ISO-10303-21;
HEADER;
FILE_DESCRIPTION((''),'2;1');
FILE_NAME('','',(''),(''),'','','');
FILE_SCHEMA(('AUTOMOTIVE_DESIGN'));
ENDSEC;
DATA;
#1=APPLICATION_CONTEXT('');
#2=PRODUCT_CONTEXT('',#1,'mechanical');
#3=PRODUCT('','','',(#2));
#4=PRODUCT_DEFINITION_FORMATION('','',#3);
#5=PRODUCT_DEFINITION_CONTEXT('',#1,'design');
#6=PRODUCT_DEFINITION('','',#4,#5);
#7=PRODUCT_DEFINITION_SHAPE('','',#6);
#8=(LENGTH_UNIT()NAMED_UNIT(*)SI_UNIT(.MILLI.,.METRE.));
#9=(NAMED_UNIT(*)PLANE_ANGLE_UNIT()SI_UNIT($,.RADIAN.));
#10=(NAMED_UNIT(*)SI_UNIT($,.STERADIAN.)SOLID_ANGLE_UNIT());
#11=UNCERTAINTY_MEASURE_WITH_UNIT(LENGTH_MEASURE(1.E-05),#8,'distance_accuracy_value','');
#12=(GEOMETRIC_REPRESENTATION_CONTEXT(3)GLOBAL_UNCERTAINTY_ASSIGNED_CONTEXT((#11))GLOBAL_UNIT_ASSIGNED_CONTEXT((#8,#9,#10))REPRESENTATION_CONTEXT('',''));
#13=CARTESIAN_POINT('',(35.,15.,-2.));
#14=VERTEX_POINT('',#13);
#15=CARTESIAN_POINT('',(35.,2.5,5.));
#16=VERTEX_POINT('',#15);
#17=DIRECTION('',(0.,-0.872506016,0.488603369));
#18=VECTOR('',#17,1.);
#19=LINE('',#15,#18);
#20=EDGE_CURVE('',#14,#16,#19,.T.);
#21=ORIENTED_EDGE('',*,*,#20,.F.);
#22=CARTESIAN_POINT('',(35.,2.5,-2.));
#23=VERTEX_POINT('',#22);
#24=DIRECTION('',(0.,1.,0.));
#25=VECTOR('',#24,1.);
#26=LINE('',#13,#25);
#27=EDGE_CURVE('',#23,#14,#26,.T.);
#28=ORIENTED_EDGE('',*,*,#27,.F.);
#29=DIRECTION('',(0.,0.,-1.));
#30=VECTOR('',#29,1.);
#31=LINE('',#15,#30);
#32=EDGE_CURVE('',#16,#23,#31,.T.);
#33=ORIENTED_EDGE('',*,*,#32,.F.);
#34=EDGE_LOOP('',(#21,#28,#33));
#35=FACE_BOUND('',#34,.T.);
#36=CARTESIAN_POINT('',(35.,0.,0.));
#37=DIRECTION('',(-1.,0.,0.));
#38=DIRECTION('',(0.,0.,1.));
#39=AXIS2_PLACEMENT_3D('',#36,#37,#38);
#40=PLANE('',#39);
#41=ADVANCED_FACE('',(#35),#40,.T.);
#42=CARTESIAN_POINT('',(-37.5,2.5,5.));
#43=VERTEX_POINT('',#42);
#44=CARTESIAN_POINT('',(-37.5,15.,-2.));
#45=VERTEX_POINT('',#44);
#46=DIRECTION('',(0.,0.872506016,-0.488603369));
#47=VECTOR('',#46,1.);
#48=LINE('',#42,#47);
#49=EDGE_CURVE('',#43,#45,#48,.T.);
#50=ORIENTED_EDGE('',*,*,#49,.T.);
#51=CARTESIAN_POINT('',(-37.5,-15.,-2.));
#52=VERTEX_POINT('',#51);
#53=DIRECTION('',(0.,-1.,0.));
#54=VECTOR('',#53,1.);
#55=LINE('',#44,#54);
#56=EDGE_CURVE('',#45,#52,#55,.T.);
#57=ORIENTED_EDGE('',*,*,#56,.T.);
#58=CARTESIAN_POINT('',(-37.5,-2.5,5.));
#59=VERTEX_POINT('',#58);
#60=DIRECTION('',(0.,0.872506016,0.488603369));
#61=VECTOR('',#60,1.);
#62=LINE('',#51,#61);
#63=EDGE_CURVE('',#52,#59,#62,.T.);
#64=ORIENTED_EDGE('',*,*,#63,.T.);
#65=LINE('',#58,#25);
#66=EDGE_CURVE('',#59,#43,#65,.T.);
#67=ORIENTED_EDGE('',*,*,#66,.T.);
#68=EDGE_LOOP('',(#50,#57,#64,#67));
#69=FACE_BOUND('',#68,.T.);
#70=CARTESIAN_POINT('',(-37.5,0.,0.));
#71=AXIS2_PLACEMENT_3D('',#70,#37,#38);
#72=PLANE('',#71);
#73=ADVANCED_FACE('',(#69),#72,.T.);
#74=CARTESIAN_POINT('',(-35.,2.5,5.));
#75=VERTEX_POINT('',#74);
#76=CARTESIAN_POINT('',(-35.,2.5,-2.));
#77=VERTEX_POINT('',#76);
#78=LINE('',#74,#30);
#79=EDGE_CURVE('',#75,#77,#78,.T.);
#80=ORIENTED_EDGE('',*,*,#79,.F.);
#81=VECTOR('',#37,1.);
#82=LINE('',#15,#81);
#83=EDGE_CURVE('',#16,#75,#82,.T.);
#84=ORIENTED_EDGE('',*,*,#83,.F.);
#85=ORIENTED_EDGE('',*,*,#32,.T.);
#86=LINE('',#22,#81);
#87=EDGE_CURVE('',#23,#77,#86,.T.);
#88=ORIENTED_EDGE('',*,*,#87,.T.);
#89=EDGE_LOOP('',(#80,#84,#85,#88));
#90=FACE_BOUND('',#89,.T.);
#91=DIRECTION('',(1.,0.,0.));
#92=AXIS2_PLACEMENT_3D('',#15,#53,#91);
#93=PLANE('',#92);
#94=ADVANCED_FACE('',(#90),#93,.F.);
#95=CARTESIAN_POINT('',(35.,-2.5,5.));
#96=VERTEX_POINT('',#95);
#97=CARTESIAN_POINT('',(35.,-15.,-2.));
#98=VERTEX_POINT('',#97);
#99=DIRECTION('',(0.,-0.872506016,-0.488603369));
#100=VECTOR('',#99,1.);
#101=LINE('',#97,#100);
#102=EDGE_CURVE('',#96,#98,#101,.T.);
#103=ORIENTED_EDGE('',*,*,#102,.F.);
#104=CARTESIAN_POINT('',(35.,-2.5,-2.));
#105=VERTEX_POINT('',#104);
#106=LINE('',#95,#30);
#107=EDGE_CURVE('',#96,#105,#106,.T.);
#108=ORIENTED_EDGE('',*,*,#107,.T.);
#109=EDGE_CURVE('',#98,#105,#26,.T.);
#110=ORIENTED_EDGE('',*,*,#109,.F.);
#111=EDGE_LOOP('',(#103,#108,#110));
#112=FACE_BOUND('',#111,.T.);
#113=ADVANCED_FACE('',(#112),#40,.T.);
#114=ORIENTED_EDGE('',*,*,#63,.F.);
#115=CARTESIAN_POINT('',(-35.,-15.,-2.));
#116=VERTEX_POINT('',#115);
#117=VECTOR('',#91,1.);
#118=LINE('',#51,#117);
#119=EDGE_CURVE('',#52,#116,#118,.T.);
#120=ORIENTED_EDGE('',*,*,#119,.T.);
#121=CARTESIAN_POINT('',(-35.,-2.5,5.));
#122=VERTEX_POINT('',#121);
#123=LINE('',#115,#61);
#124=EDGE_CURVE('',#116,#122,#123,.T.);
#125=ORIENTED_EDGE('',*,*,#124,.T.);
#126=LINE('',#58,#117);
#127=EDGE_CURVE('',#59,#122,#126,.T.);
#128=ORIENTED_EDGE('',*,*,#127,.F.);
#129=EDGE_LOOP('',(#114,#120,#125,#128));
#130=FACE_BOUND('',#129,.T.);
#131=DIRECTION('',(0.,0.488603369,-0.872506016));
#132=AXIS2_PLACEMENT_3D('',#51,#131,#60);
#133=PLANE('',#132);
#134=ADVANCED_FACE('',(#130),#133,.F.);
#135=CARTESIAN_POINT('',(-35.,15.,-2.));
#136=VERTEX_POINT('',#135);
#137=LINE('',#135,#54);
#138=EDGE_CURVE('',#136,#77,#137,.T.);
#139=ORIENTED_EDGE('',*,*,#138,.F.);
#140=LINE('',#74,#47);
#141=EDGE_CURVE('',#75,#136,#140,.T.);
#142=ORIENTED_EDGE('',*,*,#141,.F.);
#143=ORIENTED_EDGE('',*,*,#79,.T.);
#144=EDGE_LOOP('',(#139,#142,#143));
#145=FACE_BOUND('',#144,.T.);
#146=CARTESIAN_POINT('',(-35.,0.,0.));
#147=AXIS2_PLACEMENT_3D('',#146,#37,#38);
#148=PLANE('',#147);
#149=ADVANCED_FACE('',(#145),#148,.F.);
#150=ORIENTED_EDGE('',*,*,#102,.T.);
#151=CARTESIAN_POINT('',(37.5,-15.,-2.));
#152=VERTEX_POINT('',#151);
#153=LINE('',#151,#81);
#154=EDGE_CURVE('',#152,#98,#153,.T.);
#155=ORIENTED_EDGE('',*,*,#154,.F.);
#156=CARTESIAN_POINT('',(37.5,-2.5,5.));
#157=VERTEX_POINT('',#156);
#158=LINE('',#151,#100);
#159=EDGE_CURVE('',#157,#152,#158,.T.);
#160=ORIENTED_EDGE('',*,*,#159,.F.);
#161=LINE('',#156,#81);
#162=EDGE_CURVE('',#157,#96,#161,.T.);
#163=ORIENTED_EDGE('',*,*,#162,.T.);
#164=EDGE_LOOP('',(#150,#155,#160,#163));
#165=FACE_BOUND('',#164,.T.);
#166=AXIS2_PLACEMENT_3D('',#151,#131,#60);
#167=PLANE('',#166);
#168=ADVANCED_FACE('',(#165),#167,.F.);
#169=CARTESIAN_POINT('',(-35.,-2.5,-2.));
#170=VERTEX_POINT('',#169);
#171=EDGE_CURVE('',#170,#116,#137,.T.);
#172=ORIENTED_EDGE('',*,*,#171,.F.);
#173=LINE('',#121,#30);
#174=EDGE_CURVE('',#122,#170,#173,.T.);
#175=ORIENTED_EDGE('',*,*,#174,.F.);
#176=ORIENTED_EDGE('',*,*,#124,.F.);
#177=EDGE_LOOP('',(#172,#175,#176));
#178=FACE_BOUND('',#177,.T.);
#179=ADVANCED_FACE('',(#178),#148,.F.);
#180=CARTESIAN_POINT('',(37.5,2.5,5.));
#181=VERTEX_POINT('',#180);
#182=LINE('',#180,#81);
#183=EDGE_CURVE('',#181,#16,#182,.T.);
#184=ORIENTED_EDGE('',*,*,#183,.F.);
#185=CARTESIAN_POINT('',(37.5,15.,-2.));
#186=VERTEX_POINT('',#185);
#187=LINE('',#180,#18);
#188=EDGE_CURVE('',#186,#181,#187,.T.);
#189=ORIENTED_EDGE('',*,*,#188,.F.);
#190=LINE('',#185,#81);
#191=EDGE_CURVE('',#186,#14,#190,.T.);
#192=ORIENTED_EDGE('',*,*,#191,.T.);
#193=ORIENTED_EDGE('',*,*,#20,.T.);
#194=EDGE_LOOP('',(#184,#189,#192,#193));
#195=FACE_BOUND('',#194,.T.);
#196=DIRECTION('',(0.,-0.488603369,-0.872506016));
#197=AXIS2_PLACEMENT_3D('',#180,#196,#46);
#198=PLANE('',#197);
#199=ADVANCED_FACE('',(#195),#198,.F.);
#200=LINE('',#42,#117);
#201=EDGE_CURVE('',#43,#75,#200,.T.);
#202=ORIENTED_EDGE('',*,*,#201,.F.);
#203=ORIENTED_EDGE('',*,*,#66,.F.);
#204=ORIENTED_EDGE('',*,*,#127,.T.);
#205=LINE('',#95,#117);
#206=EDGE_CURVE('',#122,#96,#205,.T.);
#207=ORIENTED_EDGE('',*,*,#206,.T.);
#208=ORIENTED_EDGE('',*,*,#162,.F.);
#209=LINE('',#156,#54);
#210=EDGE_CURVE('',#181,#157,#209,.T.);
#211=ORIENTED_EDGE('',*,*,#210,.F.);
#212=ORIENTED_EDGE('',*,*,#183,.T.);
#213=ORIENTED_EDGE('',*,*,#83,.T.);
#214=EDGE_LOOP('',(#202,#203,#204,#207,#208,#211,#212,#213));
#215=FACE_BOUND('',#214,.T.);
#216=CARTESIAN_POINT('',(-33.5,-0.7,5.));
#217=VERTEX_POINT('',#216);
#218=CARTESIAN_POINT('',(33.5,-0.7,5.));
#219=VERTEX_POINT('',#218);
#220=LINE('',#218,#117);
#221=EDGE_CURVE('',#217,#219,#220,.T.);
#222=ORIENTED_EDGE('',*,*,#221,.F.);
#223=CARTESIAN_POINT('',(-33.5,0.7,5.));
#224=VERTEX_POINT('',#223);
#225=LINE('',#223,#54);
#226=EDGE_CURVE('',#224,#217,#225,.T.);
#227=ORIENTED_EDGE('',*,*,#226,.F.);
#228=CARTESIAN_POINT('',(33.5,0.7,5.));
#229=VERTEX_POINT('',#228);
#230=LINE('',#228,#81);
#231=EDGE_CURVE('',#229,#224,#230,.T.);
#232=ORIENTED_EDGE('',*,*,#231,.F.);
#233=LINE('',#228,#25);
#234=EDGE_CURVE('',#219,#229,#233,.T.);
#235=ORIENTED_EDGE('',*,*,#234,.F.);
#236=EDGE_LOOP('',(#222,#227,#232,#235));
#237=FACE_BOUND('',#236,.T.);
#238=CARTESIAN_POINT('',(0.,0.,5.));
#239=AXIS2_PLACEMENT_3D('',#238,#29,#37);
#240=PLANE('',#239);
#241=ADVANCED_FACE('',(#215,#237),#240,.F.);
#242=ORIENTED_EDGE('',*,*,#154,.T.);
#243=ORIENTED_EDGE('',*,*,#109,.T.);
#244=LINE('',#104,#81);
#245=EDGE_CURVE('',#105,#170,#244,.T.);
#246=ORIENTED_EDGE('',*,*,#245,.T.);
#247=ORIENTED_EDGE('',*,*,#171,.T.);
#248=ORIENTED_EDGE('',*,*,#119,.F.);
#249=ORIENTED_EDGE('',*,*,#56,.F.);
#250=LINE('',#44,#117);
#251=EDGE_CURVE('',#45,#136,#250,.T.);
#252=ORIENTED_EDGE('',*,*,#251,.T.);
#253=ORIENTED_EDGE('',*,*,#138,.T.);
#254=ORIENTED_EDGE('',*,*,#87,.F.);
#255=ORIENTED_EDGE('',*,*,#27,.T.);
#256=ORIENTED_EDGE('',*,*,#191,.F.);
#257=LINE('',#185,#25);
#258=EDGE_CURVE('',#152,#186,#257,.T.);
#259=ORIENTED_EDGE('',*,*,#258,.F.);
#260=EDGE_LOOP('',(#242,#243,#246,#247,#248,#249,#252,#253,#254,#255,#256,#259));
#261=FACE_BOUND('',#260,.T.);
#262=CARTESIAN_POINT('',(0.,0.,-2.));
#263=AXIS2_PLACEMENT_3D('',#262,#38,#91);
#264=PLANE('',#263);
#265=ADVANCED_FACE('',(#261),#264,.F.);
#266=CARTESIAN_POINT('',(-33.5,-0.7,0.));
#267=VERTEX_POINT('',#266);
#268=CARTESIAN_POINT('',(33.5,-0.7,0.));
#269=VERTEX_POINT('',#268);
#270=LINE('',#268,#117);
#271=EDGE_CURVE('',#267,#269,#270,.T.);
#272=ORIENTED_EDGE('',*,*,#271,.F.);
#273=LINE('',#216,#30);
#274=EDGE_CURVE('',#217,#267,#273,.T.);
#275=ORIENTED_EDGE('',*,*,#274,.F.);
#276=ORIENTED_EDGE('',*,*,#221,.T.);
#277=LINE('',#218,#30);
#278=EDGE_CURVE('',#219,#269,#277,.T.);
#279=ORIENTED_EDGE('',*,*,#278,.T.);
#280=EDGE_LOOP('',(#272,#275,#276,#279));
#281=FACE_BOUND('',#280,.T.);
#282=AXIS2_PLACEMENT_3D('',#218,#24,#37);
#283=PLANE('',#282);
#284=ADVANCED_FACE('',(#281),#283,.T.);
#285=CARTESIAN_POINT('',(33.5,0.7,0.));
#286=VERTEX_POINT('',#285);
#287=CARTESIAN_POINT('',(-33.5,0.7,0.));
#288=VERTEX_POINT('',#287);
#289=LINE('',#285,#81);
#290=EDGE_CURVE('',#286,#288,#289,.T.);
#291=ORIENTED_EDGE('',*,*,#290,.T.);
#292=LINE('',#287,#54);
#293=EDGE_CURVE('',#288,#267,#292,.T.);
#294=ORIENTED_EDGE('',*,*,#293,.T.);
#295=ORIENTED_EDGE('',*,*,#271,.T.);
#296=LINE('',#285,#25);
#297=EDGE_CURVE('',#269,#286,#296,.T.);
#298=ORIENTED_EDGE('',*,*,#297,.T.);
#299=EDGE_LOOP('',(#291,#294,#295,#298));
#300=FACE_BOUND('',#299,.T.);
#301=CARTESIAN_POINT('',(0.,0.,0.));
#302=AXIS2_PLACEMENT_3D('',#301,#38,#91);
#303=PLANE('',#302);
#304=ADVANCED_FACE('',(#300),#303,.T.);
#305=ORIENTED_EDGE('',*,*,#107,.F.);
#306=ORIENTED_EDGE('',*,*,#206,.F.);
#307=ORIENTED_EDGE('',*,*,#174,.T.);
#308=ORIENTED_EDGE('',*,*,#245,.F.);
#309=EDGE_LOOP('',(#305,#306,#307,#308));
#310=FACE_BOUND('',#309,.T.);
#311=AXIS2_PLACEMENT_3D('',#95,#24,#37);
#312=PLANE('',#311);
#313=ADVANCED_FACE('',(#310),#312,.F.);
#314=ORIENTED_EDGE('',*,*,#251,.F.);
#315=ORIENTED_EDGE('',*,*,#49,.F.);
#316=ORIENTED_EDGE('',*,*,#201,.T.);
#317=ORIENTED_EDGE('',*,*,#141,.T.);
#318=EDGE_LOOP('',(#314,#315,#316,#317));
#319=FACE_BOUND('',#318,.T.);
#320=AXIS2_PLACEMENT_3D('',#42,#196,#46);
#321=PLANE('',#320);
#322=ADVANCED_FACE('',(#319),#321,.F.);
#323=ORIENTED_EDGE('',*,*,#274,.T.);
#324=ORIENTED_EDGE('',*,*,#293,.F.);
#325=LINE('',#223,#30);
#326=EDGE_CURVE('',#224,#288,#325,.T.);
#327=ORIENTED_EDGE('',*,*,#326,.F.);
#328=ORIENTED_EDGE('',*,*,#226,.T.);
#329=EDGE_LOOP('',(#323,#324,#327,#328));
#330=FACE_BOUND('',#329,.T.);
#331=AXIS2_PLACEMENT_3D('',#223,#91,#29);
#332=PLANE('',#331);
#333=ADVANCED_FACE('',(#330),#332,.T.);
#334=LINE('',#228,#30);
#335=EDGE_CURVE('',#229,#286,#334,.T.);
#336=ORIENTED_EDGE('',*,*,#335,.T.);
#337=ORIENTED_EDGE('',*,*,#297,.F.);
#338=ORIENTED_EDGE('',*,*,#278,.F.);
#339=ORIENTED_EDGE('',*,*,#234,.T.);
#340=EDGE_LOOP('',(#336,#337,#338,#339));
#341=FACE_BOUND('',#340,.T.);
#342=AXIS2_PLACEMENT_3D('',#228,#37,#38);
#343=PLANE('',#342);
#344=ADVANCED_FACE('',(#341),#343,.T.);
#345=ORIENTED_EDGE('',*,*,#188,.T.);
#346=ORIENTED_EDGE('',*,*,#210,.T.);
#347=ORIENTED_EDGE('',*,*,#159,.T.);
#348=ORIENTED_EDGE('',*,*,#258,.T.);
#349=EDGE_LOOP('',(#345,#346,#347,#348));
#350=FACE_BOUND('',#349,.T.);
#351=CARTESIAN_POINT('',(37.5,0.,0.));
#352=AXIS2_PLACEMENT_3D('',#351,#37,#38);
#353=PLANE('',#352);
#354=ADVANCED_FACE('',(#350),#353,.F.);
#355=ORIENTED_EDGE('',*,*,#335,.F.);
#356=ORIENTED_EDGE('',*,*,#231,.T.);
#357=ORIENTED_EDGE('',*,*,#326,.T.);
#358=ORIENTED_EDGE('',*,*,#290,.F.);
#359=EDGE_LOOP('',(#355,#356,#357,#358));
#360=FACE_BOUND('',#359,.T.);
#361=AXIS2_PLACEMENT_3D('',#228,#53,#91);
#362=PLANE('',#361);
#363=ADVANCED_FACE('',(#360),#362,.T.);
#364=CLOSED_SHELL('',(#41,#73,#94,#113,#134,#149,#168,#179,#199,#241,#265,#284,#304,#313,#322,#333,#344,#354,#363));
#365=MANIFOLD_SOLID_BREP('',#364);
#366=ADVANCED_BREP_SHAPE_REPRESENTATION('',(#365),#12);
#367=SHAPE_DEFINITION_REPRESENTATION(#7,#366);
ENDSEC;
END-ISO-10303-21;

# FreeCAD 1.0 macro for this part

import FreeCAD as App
import Part
import Sketcher

V = App.Vector
Q = App.Units.Quantity


def add_polygon(sketch, points):
    """Adds a closed chain of lines whose ends are joined by coincident constraints."""
    first, n = sketch.GeometryCount, len(points)
    for a, b in zip(points, points[1:] + points[:1]):
        sketch.addGeometry(Part.LineSegment(App.Vector(*a, 0), App.Vector(*b, 0)), False)
    for i in range(n):
        sketch.addConstraint(Sketcher.Constraint("Coincident", first + i, 2, first + (i + 1) % n, 1))

doc = App.newDocument("Part")
body = doc.addObject("PartDesign::Body", "Body")

# Sketch on XY plane
sketch1 = body.newObject("Sketcher::SketchObject", "Sketch")
sketch1.AttachmentSupport = (doc.getObject("XY_Plane"), [""])
sketch1.MapMode = "FlatFace"
add_polygon(sketch1, [(-35, 2.5), (-35, -2.5), (35, -2.5), (35, 2.5)])  # lines 0-3
add_polygon(sketch1, [(33.5, -0.7), (-33.5, -0.7), (-33.5, 0.7), (33.5, 0.7)])  # lines 4-7
sketch1.addConstraint([
    Sketcher.Constraint("Vertical", 0),
    Sketcher.Constraint("Horizontal", 1),
    Sketcher.Constraint("Vertical", 2),
    Sketcher.Constraint("Horizontal", 3),
    Sketcher.Constraint("Horizontal", 4),
    Sketcher.Constraint("Vertical", 5),
    Sketcher.Constraint("Horizontal", 6),
    Sketcher.Constraint("Vertical", 7),
    Sketcher.Constraint("Symmetric", 0, 2, 2, 2, -1, 1),
    Sketcher.Constraint("Symmetric", 4, 2, 6, 2, -1, 1),
    Sketcher.Constraint("DistanceX", 1, 1, 1, 2, Q("70 mm")),
    Sketcher.Constraint("DistanceX", 4, 2, 4, 1, Q("67 mm")),
    Sketcher.Constraint("DistanceY", 0, 2, 0, 1, Q("5 mm")),
    Sketcher.Constraint("DistanceY", 5, 1, 5, 2, Q("1.4 mm")),
])
pad1 = body.newObject("PartDesign::Pad", "Pad")
pad1.Profile = sketch1
pad1.Length = 5

# Sketch on XY plane
sketch2 = body.newObject("Sketcher::SketchObject", "Sketch001")
sketch2.AttachmentSupport = (doc.getObject("XY_Plane"), [""])
sketch2.MapMode = "FlatFace"
add_polygon(sketch2, [(35, 2), (35, -2), (-35, -2), (-35, 2)])  # lines 0-3
sketch2.addConstraint([
    Sketcher.Constraint("Vertical", 0),
    Sketcher.Constraint("Horizontal", 1),
    Sketcher.Constraint("Vertical", 2),
    Sketcher.Constraint("Horizontal", 3),
    Sketcher.Constraint("Symmetric", 0, 2, 2, 2, -1, 1),
    Sketcher.Constraint("DistanceX", 1, 2, 1, 1, Q("70 mm")),
    Sketcher.Constraint("DistanceY", 0, 2, 0, 1, Q("5 mm")),
])
pad2 = body.newObject("PartDesign::Pad", "Pad001")
pad2.Profile = sketch2
pad2.Length = 2
pad2.Reversed = True

# Sketch on YZ plane
sketch3 = body.newObject("Sketcher::SketchObject", "Sketch002")
sketch3.AttachmentSupport = (doc.getObject("YZ_Plane"), [""])
sketch3.MapMode = "FlatFace"
sketch3.AttachmentOffset = App.Placement(V(0, 0, 35), App.Rotation())
add_polygon(sketch3, [(15, -2), (2, 5), (-2, 5), (-15, -2)])  # lines 0-3
sketch3.addConstraint([
    Sketcher.Constraint("Horizontal", 1),
    Sketcher.Constraint("Horizontal", 3),
    Sketcher.Constraint("Equal", 0, 2),
    Sketcher.Constraint("DistanceX", 1, 2, 1, 1, Q("5 mm")),
    Sketcher.Constraint("DistanceX", 3, 1, 3, 2, Q("30 mm")),
    Sketcher.Constraint("DistanceY", -1, 1, 0, 2, Q("5 mm")),
    Sketcher.Constraint("DistanceX", 2, 2, -1, 1, Q("15 mm")),
    Sketcher.Constraint("DistanceY", 2, 2, -1, 1, Q("2 mm")),
])
pad3 = body.newObject("PartDesign::Pad", "Pad002")
pad3.Profile = sketch3
pad3.Length = 2.5

# Sketch on YZ plane
sketch4 = body.newObject("Sketcher::SketchObject", "Sketch003")
sketch4.AttachmentSupport = (doc.getObject("YZ_Plane"), [""])
sketch4.MapMode = "FlatFace"
sketch4.AttachmentOffset = App.Placement(V(0, 0, -35), App.Rotation())
add_polygon(sketch4, [(2, 5), (15, -2), (-15, -2), (-2, 5)])  # lines 0-3
sketch4.addConstraint([
    Sketcher.Constraint("Horizontal", 1),
    Sketcher.Constraint("Horizontal", 3),
    Sketcher.Constraint("Equal", 0, 2),
    Sketcher.Constraint("DistanceX", 1, 2, 1, 1, Q("30 mm")),
    Sketcher.Constraint("DistanceX", 3, 1, 3, 2, Q("5 mm")),
    Sketcher.Constraint("DistanceX", -1, 1, 0, 2, Q("15 mm")),
    Sketcher.Constraint("DistanceY", 0, 2, -1, 1, Q("2 mm")),
    Sketcher.Constraint("DistanceY", -1, 1, 2, 2, Q("5 mm")),
])
pad4 = body.newObject("PartDesign::Pad", "Pad003")
pad4.Profile = sketch4
pad4.Length = 2.5
pad4.Reversed = True

doc.recompute()
